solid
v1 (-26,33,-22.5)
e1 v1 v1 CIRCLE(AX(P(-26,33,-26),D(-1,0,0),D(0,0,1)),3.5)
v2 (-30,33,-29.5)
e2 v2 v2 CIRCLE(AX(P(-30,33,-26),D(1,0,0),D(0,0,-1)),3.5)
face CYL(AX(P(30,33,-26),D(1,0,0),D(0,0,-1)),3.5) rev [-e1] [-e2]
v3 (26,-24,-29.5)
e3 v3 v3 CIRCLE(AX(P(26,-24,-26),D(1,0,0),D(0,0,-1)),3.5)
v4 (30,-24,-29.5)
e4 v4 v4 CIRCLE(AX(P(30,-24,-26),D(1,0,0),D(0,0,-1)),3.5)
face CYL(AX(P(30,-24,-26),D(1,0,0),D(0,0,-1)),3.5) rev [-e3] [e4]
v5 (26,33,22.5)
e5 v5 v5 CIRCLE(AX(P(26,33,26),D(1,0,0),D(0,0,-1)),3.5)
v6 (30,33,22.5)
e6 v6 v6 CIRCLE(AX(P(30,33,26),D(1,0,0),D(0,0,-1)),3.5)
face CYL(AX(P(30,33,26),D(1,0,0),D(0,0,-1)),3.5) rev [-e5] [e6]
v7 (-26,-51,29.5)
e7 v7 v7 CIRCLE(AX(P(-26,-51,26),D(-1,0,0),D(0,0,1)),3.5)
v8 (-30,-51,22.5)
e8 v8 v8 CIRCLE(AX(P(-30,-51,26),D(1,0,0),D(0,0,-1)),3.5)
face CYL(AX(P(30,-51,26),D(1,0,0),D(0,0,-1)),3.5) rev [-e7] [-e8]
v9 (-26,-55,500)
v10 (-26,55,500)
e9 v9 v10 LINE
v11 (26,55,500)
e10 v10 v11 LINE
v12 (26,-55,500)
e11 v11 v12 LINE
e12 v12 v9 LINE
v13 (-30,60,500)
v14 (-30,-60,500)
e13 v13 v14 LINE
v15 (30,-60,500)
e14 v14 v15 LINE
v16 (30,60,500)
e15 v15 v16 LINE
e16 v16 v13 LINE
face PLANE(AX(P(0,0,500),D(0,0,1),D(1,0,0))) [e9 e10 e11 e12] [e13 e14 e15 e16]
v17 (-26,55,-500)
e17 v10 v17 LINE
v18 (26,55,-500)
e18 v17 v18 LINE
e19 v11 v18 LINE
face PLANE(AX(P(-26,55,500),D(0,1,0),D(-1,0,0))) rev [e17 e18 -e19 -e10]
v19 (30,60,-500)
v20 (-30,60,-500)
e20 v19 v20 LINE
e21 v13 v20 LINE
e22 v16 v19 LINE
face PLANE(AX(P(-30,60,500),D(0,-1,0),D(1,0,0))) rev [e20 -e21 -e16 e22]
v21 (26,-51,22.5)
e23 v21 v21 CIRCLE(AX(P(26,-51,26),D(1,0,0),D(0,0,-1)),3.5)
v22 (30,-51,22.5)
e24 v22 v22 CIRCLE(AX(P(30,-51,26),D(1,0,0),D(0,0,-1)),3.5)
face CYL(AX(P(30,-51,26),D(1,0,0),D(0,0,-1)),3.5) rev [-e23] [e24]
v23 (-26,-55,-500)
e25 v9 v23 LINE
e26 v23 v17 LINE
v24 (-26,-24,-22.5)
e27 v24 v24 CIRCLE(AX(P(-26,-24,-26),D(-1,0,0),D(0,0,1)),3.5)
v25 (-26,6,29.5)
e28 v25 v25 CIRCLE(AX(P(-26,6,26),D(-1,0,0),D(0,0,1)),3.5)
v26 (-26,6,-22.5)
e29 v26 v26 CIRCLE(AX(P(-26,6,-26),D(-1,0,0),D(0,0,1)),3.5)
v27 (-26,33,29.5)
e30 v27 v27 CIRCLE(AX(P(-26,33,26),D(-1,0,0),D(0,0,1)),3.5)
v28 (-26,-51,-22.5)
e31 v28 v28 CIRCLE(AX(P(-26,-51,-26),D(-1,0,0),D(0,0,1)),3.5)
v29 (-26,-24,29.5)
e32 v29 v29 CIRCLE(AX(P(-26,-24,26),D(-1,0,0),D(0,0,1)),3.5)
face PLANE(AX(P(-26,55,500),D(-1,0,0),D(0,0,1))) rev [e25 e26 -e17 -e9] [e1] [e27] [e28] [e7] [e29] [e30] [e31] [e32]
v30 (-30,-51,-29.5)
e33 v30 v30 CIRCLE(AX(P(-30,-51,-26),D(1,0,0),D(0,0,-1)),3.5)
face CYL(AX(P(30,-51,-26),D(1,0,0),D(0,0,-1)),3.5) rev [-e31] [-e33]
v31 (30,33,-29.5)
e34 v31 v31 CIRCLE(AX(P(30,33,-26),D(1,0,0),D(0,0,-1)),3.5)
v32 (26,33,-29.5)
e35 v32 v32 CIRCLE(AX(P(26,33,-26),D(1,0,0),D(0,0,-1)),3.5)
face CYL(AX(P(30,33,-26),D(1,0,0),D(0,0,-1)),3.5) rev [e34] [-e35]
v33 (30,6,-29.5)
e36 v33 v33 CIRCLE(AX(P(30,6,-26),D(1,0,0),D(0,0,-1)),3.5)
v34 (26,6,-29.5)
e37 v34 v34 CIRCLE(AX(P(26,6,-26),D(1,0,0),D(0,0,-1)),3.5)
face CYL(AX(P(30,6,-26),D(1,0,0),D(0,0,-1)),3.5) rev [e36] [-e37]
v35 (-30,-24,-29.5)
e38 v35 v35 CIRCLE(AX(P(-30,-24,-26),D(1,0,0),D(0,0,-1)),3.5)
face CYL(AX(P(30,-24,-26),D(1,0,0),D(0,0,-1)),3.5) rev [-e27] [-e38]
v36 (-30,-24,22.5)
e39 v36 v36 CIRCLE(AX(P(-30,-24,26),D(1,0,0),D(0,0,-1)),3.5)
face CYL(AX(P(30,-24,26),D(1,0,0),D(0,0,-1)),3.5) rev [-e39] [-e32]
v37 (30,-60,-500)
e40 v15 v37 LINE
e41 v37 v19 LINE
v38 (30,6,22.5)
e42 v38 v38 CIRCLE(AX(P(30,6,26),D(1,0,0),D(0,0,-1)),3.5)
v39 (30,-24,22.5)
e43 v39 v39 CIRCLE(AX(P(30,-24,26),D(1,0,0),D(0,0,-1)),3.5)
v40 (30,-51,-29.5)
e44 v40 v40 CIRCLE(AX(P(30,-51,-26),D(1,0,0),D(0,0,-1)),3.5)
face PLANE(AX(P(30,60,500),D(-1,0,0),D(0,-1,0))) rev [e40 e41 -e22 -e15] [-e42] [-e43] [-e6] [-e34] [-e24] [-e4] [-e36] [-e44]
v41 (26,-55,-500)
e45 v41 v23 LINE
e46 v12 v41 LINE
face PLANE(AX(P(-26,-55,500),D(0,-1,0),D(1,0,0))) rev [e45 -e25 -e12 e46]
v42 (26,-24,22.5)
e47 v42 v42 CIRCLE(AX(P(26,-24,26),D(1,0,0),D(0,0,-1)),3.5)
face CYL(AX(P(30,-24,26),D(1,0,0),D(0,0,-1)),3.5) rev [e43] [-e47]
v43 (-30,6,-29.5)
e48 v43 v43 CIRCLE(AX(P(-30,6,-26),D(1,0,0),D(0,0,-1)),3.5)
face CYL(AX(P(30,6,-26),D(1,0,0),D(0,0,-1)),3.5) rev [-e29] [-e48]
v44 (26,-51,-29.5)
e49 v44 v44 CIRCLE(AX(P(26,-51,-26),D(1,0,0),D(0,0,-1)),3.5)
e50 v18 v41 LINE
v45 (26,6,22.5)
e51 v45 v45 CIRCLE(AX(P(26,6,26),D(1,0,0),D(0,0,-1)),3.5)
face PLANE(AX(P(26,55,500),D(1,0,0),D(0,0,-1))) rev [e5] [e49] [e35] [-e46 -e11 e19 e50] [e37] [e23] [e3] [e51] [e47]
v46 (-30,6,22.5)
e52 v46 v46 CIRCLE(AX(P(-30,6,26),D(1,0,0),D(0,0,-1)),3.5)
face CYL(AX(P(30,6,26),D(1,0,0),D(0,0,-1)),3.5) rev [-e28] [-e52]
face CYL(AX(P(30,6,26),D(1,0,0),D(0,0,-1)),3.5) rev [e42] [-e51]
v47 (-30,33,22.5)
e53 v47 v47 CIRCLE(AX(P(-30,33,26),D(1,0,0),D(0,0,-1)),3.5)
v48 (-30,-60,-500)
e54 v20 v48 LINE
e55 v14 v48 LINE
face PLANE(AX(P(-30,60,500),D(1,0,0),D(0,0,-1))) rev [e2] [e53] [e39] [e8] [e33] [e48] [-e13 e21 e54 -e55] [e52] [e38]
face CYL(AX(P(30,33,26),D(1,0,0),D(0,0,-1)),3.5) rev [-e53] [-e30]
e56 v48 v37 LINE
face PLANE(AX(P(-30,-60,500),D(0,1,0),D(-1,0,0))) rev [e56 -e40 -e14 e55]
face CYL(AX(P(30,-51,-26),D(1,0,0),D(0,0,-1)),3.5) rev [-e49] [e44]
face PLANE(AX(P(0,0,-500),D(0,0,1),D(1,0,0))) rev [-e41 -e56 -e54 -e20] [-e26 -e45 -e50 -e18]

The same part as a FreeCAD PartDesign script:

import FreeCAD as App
import Part
import Sketcher
from FreeCAD import Vector
Q = App.Units.Quantity


def add_polygon(sketch, points):
    """Adds a closed chain of lines whose ends are joined by coincident constraints."""
    first, n = sketch.GeometryCount, len(points)
    for a, b in zip(points, points[1:] + points[:1]):
        sketch.addGeometry(Part.LineSegment(App.Vector(*a, 0), App.Vector(*b, 0)), False)
    for i in range(n):
        sketch.addConstraint(Sketcher.Constraint("Coincident", first + i, 2, first + (i + 1) % n, 1))

doc = App.newDocument("Part")
params = doc.addObject("Spreadsheet::Sheet", "Params")
for row, (alias, value) in enumerate([
    ("sketch1_width", "60 mm"),
    ("sketch1_width2", "52 mm"),
    ("sketch1_height", "120 mm"),
    ("sketch1_height2", "110 mm"),
    ("sketch3_diameter", "7 mm"),
    ("hole_diameter", "7 mm"),
], start=1):
    params.set(f"A{row}", alias)
    params.set(f"B{row}", "=" + value)
    params.setAlias(f"B{row}", alias)

body = doc.addObject("PartDesign::Body", "Body")

# Sketch on XY plane
sketch1 = doc.addObject("Sketcher::SketchObject", "Sketch")
body.addObject(sketch1)
sketch1.AttachmentSupport = (doc.XY_Plane, [""])
sketch1.MapMode = "FlatFace"
add_polygon(sketch1, [(-30, 60), (-30, -60), (30, -60), (30, 60)])  # lines 0-3
add_polygon(sketch1, [(26, -55), (-26, -55), (-26, 55), (26, 55)])  # lines 4-7
sketch1.addConstraint(Sketcher.Constraint("Vertical", 0))
sketch1.addConstraint(Sketcher.Constraint("Horizontal", 1))
sketch1.addConstraint(Sketcher.Constraint("Vertical", 2))
sketch1.addConstraint(Sketcher.Constraint("Horizontal", 3))
sketch1.addConstraint(Sketcher.Constraint("Horizontal", 4))
sketch1.addConstraint(Sketcher.Constraint("Vertical", 5))
sketch1.addConstraint(Sketcher.Constraint("Horizontal", 6))
sketch1.addConstraint(Sketcher.Constraint("Vertical", 7))
sketch1.addConstraint(Sketcher.Constraint("Symmetric", 0, 2, 2, 2, -1, 1))
sketch1.addConstraint(Sketcher.Constraint("Symmetric", 4, 2, 6, 2, -1, 1))
sketch1.addConstraint(Sketcher.Constraint("DistanceX", 1, 1, 1, 2, Q("60 mm")))
sketch1.addConstraint(Sketcher.Constraint("DistanceX", 4, 2, 4, 1, Q("52 mm")))
sketch1.addConstraint(Sketcher.Constraint("DistanceY", 0, 2, 0, 1, Q("120 mm")))
sketch1.addConstraint(Sketcher.Constraint("DistanceY", 5, 1, 5, 2, Q("110 mm")))
sketch1.setExpression("Constraints[18]", "Params.sketch1_width")
sketch1.setExpression("Constraints[19]", "Params.sketch1_width2")
sketch1.setExpression("Constraints[20]", "Params.sketch1_height")
sketch1.setExpression("Constraints[21]", "Params.sketch1_height2")

# Sketch on XZ plane
sketch2 = doc.addObject("Sketcher::SketchObject", "Sketch001")
body.addObject(sketch2)
sketch2.AttachmentSupport = (doc.XZ_Plane, [""])
sketch2.MapMode = "FlatFace"
sketch2.addGeometry(Part.BSplineCurve([Vector(0, -500, 0), Vector(0, 500, 0)], [2, 2], [0, 1], False, 1, [1, 1], False), False)
sketch2.addConstraint(Sketcher.Constraint("Block", 0))
doc.recompute()

additivepipe = doc.addObject("PartDesign::AdditivePipe", "AdditivePipe")
body.addObject(additivepipe)
additivepipe.Profile = sketch1
additivepipe.Spine = (sketch2, ["Edge1"])

# Sketch on YZ plane
sketch3 = doc.addObject("Sketcher::SketchObject", "Sketch002")
body.addObject(sketch3)
sketch3.AttachmentSupport = (doc.YZ_Plane, [""])
sketch3.MapMode = "FlatFace"
sketch3.AttachmentOffset = App.Placement(Vector(0, 0, 30), App.Rotation())
sketch3.addGeometry(Part.Circle(Vector(33, -26, 0), Vector(0, 0, 1), 3.5), False)
sketch3.addGeometry(Part.Circle(Vector(6, -26, 0), Vector(0, 0, 1), 3.5), False)
sketch3.addGeometry(Part.Circle(Vector(-24, -26, 0), Vector(0, 0, 1), 3.5), False)
sketch3.addGeometry(Part.Circle(Vector(-51, -26, 0), Vector(0, 0, 1), 3.5), False)
sketch3.addConstraint(Sketcher.Constraint("Equal", 0, 1))
sketch3.addConstraint(Sketcher.Constraint("Equal", 1, 2))
sketch3.addConstraint(Sketcher.Constraint("Equal", 2, 3))
sketch3.addConstraint(Sketcher.Constraint("Horizontal", 0, 3, 1, 3))
sketch3.addConstraint(Sketcher.Constraint("Horizontal", 1, 3, 2, 3))
sketch3.addConstraint(Sketcher.Constraint("Horizontal", 2, 3, 3, 3))
sketch3.addConstraint(Sketcher.Constraint("Diameter", 0, Q("7 mm")))
sketch3.addConstraint(Sketcher.Constraint("DistanceX", -1, 1, 0, 3, Q("33 mm")))
sketch3.addConstraint(Sketcher.Constraint("DistanceY", 0, 3, -1, 1, Q("26 mm")))
sketch3.addConstraint(Sketcher.Constraint("DistanceX", -1, 1, 1, 3, Q("6 mm")))
sketch3.addConstraint(Sketcher.Constraint("DistanceX", 2, 3, -1, 1, Q("24 mm")))
sketch3.addConstraint(Sketcher.Constraint("DistanceX", 3, 3, -1, 1, Q("51 mm")))
sketch3.setExpression("Constraints[6]", "Params.sketch3_diameter")
doc.recompute()
hole = doc.addObject("PartDesign::Hole", "Hole")
body.addObject(hole)
hole.Profile = sketch3
hole.ThreadType = "None"
hole.setExpression("Diameter", "Params.hole_diameter")
hole.DepthType = "ThroughAll"
doc.recompute()

mirrored = doc.addObject("PartDesign::Mirrored", "Mirrored")
body.addObject(mirrored)
mirrored.Originals = [hole]
mirrored.MirrorPlane = (doc.XY_Plane, [""])
body.Tip = mirrored

doc.recompute()
